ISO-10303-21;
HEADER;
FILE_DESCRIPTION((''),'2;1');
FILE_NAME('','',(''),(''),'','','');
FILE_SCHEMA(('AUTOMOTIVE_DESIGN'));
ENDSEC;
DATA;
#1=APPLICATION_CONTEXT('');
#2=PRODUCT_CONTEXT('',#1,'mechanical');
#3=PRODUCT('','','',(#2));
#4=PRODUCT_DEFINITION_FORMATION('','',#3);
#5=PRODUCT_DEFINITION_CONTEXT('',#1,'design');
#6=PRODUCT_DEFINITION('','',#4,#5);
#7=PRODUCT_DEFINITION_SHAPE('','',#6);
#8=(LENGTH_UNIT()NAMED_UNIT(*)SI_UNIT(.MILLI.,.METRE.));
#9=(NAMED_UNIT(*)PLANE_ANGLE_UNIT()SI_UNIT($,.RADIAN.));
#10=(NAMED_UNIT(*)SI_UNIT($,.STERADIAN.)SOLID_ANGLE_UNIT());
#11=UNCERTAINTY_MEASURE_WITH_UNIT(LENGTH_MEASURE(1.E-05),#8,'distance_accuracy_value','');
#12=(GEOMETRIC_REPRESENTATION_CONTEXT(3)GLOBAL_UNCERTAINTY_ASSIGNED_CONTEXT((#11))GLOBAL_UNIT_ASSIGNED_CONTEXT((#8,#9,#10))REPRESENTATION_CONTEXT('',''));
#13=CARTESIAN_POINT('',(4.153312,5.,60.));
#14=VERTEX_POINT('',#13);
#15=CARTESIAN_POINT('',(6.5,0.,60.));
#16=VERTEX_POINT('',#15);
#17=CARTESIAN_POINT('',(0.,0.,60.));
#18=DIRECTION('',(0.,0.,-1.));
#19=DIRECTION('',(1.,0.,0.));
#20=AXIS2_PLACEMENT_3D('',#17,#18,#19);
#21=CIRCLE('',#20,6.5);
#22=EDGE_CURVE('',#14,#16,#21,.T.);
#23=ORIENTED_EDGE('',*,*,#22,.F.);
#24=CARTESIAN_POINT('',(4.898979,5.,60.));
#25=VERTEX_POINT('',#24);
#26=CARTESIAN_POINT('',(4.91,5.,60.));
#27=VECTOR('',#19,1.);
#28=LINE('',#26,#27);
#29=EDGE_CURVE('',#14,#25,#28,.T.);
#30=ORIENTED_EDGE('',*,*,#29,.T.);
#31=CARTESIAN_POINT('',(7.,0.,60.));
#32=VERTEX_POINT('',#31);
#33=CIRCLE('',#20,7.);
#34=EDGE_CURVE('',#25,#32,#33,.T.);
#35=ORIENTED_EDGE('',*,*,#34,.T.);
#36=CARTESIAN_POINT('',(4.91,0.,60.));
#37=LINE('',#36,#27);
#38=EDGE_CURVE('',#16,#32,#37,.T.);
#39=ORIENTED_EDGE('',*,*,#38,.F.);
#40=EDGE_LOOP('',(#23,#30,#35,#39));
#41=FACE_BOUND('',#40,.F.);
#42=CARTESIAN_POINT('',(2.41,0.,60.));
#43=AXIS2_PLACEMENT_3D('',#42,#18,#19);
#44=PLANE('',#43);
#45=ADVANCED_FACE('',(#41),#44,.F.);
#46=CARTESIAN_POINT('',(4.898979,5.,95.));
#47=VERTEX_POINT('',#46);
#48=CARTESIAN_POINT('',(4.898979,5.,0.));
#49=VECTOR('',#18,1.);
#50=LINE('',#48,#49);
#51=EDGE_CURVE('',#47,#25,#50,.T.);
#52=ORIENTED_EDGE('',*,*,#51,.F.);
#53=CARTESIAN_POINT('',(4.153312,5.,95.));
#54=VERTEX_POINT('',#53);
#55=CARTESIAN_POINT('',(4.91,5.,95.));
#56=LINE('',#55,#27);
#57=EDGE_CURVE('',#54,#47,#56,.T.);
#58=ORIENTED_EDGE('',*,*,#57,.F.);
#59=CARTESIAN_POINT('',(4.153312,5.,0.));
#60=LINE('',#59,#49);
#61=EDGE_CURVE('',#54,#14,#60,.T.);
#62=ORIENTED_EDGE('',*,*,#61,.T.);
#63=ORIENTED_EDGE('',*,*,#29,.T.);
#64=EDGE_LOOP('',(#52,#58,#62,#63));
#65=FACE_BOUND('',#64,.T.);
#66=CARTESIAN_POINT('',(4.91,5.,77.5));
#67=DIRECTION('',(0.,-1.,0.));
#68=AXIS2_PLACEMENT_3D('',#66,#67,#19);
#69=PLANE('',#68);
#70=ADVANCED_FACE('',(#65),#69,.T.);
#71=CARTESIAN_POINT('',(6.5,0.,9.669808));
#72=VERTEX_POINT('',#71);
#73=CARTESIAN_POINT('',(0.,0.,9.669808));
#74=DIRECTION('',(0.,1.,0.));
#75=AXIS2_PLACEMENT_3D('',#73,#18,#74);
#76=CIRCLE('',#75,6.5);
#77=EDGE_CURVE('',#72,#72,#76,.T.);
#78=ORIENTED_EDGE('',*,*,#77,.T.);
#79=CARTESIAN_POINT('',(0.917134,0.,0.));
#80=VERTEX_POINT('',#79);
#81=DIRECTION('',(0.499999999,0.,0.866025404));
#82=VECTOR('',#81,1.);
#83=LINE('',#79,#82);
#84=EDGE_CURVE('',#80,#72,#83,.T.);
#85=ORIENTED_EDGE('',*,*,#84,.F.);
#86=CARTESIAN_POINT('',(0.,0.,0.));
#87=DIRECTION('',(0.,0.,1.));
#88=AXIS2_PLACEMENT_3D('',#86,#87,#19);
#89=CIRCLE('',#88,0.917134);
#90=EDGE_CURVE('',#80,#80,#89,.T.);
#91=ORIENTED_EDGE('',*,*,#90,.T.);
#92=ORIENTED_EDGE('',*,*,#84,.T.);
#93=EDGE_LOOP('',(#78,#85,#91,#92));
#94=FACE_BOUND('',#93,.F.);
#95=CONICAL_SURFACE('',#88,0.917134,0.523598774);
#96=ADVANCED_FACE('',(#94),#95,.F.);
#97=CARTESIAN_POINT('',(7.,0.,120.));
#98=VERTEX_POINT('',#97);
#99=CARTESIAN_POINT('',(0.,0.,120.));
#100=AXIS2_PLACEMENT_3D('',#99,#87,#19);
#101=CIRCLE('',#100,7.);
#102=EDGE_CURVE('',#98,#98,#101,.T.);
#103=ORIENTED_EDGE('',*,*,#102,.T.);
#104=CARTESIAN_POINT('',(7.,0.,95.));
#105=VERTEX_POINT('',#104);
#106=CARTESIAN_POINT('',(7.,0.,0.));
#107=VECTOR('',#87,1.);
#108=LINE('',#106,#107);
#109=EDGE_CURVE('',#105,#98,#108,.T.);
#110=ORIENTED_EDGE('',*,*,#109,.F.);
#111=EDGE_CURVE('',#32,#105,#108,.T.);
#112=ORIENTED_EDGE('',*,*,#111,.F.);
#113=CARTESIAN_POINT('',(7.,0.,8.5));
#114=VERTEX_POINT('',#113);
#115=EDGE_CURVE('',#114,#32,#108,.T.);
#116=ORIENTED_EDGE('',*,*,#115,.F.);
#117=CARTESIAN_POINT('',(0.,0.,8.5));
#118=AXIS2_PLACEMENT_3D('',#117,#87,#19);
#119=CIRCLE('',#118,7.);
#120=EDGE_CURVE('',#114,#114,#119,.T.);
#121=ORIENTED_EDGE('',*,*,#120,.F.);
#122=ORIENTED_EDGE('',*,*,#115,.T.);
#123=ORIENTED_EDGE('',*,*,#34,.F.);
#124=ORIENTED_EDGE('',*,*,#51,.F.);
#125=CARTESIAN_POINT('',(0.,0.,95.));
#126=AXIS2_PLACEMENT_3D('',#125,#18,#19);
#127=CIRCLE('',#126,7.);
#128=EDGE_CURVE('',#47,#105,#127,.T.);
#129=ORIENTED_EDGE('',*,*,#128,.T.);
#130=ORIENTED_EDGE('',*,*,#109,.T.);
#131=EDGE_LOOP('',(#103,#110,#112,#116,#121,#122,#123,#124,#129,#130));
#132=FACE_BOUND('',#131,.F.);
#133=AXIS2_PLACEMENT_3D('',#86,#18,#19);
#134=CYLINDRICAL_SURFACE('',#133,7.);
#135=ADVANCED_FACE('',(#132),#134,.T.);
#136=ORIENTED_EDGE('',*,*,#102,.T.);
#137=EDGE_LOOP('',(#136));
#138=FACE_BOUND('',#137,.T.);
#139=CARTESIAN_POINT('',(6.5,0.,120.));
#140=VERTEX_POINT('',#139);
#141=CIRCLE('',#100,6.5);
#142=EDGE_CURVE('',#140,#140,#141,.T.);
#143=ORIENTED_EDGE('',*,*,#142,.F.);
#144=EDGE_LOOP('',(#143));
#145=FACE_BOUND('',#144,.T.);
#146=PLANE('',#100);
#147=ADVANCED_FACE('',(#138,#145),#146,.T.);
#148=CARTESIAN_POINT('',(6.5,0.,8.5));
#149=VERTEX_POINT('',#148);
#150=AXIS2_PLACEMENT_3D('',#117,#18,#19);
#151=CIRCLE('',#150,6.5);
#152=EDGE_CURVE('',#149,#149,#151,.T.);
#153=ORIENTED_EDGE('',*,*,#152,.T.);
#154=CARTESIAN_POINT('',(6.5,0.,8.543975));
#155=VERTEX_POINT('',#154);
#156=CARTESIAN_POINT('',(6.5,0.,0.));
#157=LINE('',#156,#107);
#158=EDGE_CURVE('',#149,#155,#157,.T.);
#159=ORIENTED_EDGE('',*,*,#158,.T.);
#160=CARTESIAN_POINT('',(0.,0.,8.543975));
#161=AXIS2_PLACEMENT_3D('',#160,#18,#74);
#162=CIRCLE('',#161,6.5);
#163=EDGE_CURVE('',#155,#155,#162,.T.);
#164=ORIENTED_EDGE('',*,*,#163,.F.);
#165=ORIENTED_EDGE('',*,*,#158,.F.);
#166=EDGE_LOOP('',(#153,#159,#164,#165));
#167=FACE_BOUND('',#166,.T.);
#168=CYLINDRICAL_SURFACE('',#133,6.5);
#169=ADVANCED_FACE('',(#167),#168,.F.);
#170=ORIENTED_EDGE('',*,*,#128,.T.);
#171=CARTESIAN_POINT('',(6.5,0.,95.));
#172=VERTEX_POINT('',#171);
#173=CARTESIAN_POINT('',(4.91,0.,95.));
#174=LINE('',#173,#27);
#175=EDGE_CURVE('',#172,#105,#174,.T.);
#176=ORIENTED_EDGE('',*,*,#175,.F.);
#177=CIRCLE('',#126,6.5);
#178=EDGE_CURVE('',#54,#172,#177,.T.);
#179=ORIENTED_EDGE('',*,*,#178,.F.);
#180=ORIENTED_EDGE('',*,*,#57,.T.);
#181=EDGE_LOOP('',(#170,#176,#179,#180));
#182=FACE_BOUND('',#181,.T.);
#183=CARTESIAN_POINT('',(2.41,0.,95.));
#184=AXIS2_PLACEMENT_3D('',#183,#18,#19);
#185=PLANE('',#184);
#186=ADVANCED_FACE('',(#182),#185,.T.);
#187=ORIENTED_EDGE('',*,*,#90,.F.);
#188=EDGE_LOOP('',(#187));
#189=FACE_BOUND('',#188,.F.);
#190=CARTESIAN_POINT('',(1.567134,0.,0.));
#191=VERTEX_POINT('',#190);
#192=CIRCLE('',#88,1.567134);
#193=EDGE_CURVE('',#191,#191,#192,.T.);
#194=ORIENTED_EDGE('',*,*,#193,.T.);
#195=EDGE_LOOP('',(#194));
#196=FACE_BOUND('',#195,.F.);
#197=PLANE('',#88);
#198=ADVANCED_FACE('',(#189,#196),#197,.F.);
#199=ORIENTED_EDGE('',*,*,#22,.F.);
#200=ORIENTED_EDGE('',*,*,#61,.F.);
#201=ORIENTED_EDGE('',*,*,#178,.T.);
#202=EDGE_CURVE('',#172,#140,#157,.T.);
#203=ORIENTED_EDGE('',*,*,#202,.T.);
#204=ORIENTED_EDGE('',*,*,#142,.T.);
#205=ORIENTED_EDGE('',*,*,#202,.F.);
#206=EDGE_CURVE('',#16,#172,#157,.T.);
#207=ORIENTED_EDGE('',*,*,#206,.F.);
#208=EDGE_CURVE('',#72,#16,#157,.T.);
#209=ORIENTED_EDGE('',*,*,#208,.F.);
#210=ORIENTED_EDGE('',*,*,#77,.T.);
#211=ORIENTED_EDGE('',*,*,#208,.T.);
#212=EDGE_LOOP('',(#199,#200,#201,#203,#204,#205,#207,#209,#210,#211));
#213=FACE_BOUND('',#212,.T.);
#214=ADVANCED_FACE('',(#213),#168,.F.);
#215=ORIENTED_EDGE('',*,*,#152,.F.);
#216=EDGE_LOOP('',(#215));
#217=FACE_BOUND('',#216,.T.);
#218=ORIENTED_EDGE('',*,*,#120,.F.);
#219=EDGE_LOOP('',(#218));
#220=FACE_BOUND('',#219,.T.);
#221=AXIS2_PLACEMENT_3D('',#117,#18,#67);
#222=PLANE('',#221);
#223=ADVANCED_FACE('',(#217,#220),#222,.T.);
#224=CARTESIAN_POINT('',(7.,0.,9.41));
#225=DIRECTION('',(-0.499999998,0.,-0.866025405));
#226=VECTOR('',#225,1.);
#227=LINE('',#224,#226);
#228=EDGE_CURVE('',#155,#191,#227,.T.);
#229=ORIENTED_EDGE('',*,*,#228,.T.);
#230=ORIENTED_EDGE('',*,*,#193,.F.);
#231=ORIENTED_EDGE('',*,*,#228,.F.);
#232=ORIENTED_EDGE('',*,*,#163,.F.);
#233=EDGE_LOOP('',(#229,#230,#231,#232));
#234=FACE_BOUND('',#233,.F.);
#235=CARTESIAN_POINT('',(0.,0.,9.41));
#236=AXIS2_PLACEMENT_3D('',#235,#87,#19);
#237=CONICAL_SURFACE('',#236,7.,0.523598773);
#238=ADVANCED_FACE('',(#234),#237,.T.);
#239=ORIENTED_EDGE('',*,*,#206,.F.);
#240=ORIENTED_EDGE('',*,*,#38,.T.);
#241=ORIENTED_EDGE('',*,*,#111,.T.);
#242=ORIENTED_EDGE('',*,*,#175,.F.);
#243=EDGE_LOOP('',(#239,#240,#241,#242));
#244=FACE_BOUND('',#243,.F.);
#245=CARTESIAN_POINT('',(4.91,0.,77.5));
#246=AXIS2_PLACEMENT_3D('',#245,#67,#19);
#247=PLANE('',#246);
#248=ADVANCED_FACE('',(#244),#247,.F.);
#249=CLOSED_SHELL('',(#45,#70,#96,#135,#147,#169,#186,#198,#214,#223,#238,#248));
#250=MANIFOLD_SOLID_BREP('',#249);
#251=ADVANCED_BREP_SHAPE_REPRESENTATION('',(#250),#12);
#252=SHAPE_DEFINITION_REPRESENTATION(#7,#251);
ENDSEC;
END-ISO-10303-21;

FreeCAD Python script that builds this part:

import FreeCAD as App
import Part
import Sketcher

V = App.Vector
Q = App.Units.Quantity


def add_polygon(sketch, points):
    """Adds a closed chain of lines whose ends are joined by coincident constraints."""
    first, n = sketch.GeometryCount, len(points)
    for a, b in zip(points, points[1:] + points[:1]):
        sketch.addGeometry(Part.LineSegment(App.Vector(*a, 0), App.Vector(*b, 0)), False)
    for i in range(n):
        sketch.addConstraint(Sketcher.Constraint("Coincident", first + i, 2, first + (i + 1) % n, 1))

doc = App.newDocument("Part")
params = doc.addObject("Spreadsheet::Sheet", "Params")
for row, (alias, value) in enumerate([
    ("sketch1_diameter", "14 mm"),
    ("sketch1_diameter2", "13 mm"),
    ("pad1_length", "120 mm"),
    ("sketch2_width", "0.65 mm"),
    ("revolution_angle", "360 deg"),
    ("sketch3_diameter", "14 mm"),
    ("sketch3_diameter2", "13 mm"),
    ("pocket1_length", "8.5 mm"),
    ("sketch4_width", "5 mm"),
    ("sketch4_height", "35 mm"),
    ("pocket2_length", "5 mm"),
], start=1):
    params.set(f"A{row}", alias)
    params.set(f"B{row}", "=" + value)
    params.setAlias(f"B{row}", alias)

body = doc.addObject("PartDesign::Body", "Body")

# Sketch on XY plane
sketch1 = body.newObject("Sketcher::SketchObject", "Sketch")
sketch1.AttachmentSupport = (doc.getObject("XY_Plane"), [""])
sketch1.MapMode = "FlatFace"
sketch1.addGeometry(Part.Circle(V(0, 0, 0), V(0, 0, 1), 7), False)
sketch1.addGeometry(Part.Circle(V(0, 0, 0), V(0, 0, 1), 6), False)
sketch1.addConstraint(Sketcher.Constraint("Coincident", 0, 3, -1, 1))
sketch1.addConstraint(Sketcher.Constraint("Coincident", 1, 3, -1, 1))
sketch1.addConstraint(Sketcher.Constraint("Diameter", 0, 14.0))
sketch1.addConstraint(Sketcher.Constraint("Diameter", 1, 13.0))
sketch1.setExpression("Constraints[2]", "Params.sketch1_diameter")
sketch1.setExpression("Constraints[3]", "Params.sketch1_diameter2")
pad1 = body.newObject("PartDesign::Pad", "Pad")
pad1.Profile = sketch1
pad1.setExpression("Length", "Params.pad1_length")

# Sketch on XZ plane
sketch2 = body.newObject("Sketcher::SketchObject", "Sketch001")
sketch2.AttachmentSupport = (doc.getObject("XZ_Plane"), [""])
sketch2.MapMode = "FlatFace"
add_polygon(sketch2, [(7, 10.5), (0.9, 0), (1.6, 0), (7, 9.4)])  # lines 0-3
sketch2.addConstraint(Sketcher.Constraint("Horizontal", 1))
sketch2.addConstraint(Sketcher.Constraint("Vertical", 3))
sketch2.addConstraint(Sketcher.Constraint("PointOnObject", 0, 2, -1))
sketch2.addConstraint(Sketcher.Constraint("Parallel", 0, 2))
sketch2.addConstraint(Sketcher.Constraint("Angle", 0, Q("-120 deg")))
sketch2.addConstraint(Sketcher.Constraint("DistanceX", -1, 1, 2, 2, 7.0))
sketch2.addConstraint(Sketcher.Constraint("DistanceX", 1, 1, 1, 2, 0.65))
sketch2.addConstraint(Sketcher.Constraint("DistanceY", -1, 1, 2, 2, 9.41))
sketch2.setExpression("Constraints[10]", "Params.sketch2_width")
revolution = body.newObject("PartDesign::Revolution", "Revolution")
revolution.Profile = sketch2
revolution.ReferenceAxis = (sketch2, ["V_Axis"])
revolution.setExpression("Angle", "Params.revolution_angle")

# Sketch on XY plane
sketch3 = body.newObject("Sketcher::SketchObject", "Sketch002")
sketch3.AttachmentSupport = (doc.getObject("XY_Plane"), [""])
sketch3.MapMode = "FlatFace"
sketch3.addGeometry(Part.Circle(V(0, 0, 0), V(0, 0, 1), 7), False)
sketch3.addGeometry(Part.Circle(V(0, 0, 0), V(0, 0, 1), 6), False)
sketch3.addConstraint(Sketcher.Constraint("Coincident", 0, 3, -1, 1))
sketch3.addConstraint(Sketcher.Constraint("Coincident", 1, 3, -1, 1))
sketch3.addConstraint(Sketcher.Constraint("Diameter", 0, 14.0))
sketch3.addConstraint(Sketcher.Constraint("Diameter", 1, 13.0))
sketch3.setExpression("Constraints[2]", "Params.sketch3_diameter")
sketch3.setExpression("Constraints[3]", "Params.sketch3_diameter2")
pocket1 = body.newObject("PartDesign::Pocket", "Pocket")
pocket1.Profile = sketch3
pocket1.setExpression("Length", "Params.pocket1_length")
pocket1.Reversed = True

# Sketch on XZ plane
sketch4 = body.newObject("Sketcher::SketchObject", "Sketch003")
sketch4.AttachmentSupport = (doc.getObject("XZ_Plane"), [""])
sketch4.MapMode = "FlatFace"
add_polygon(sketch4, [(2, 95), (2, 60), (7, 60), (7, 95)])  # lines 0-3
sketch4.addConstraint(Sketcher.Constraint("Vertical", 0))
sketch4.addConstraint(Sketcher.Constraint("Horizontal", 1))
sketch4.addConstraint(Sketcher.Constraint("Vertical", 2))
sketch4.addConstraint(Sketcher.Constraint("Horizontal", 3))
sketch4.addConstraint(Sketcher.Constraint("DistanceX", 1, 1, 1, 2, 5.0))
sketch4.addConstraint(Sketcher.Constraint("DistanceY", 0, 2, 0, 1, 35.0))
sketch4.addConstraint(Sketcher.Constraint("DistanceY", -1, 1, 0, 2, 60.0))
sketch4.addConstraint(Sketcher.Constraint("DistanceX", -1, 1, 0, 2, 2.41))
sketch4.setExpression("Constraints[8]", "Params.sketch4_width")
sketch4.setExpression("Constraints[9]", "Params.sketch4_height")
pocket2 = body.newObject("PartDesign::Pocket", "Pocket001")
pocket2.Profile = sketch4
pocket2.setExpression("Length", "Params.pocket2_length")

doc.recompute()
